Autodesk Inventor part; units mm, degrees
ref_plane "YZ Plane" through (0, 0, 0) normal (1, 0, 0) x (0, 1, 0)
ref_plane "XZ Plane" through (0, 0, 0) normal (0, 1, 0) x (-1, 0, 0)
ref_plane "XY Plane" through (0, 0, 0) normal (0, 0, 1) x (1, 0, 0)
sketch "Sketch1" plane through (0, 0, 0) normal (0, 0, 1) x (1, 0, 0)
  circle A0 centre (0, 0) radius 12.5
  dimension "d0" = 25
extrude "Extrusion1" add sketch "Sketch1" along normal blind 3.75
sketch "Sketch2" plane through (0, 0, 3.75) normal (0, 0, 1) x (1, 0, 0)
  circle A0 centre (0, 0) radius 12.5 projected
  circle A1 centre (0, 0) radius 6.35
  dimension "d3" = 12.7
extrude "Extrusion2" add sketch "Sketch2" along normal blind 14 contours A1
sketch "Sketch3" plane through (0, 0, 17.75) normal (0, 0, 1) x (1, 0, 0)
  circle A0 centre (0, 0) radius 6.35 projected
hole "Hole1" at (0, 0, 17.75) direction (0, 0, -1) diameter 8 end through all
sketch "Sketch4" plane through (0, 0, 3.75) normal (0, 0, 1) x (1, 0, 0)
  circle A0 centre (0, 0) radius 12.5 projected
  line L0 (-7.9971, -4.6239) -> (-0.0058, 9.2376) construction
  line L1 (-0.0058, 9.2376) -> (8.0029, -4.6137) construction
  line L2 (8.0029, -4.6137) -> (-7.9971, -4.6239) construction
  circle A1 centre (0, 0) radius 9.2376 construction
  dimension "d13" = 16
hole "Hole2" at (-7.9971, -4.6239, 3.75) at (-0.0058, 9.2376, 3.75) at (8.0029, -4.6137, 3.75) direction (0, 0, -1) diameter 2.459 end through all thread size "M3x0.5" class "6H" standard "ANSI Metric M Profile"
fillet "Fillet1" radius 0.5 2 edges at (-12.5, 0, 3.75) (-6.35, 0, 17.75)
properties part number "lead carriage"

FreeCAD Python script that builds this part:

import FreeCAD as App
import Part
import Sketcher

V = App.Vector
Q = App.Units.Quantity


def edges_at(feature, points):
    """Names of the edges that pass closest to the given points."""
    edges = feature.Shape.Edges
    near = lambda p: min(range(len(edges)), key=lambda i: edges[i].distToShape(Part.Vertex(*p))[0])
    return sorted({f"Edge{near(p) + 1}" for p in points})

doc = App.newDocument("Part")
body = doc.addObject("PartDesign::Body", "Body")

sketch1 = body.newObject("Sketcher::SketchObject", "Sketch")
sketch1.AttachmentSupport = (doc.getObject("XY_Plane"), [""])
sketch1.MapMode = "FlatFace"
sketch1.addGeometry(Part.Circle(V(0, 0, 0), V(0, 0, 1), 12), False)
sketch1.addConstraint([
    Sketcher.Constraint("Coincident", 0, 3, -1, 1),
    Sketcher.Constraint("Diameter", 0, Q("25 mm")),
])
pad1 = body.newObject("PartDesign::Pad", "Pad")
pad1.Profile = sketch1
pad1.Length = 3.75

sketch2 = body.newObject("Sketcher::SketchObject", "Sketch001")
sketch2.AttachmentSupport = (doc.getObject("XY_Plane"), [""])
sketch2.MapMode = "FlatFace"
sketch2.AttachmentOffset = App.Placement(V(0, 0, 3.75), App.Rotation())
sketch2.addGeometry(Part.Circle(V(0, 0, 0), V(0, 0, 1), 6), False)
sketch2.addConstraint([
    Sketcher.Constraint("Coincident", 0, 3, -1, 1),
    Sketcher.Constraint("Diameter", 0, Q("12.7 mm")),
])
pad2 = body.newObject("PartDesign::Pad", "Pad001")
pad2.Profile = sketch2
pad2.Length = 14

sketch3 = body.newObject("Sketcher::SketchObject", "Sketch002")
sketch3.AttachmentSupport = (doc.getObject("XY_Plane"), [""])
sketch3.MapMode = "FlatFace"
sketch3.AttachmentOffset = App.Placement(V(0, 0, 17.75), App.Rotation())
sketch3.addGeometry(Part.Circle(V(0, 0, 0), V(0, 0, 1), 4), False)
sketch3.addConstraint([
    Sketcher.Constraint("Coincident", 0, 3, -1, 1),
    Sketcher.Constraint("Diameter", 0, Q("8 mm")),
])
doc.recompute()
hole = body.newObject("PartDesign::Hole", "Hole")
hole.Profile = sketch3
hole.ThreadType = "None"
hole.Diameter = 8
hole.DepthType = "ThroughAll"

sketch4 = body.newObject("Sketcher::SketchObject", "Sketch003")
sketch4.AttachmentSupport = (doc.getObject("XY_Plane"), [""])
sketch4.MapMode = "FlatFace"
sketch4.AttachmentOffset = App.Placement(V(0, 0, 3.75), App.Rotation())
sketch4.addGeometry([
    Part.Circle(V(-8, -4.6, 0), V(0, 0, 1), 1.2),
    Part.Circle(V(0, 9.2, 0), V(0, 0, 1), 1.2),
    Part.Circle(V(8, -4.6, 0), V(0, 0, 1), 1.2),
], False)
sketch4.addConstraint([
    Sketcher.Constraint("Equal", 0, 1),
    Sketcher.Constraint("Equal", 1, 2),
    Sketcher.Constraint("Diameter", 0, Q("2.459 mm")),
    Sketcher.Constraint("DistanceX", 0, 3, 2, 3, Q("16 mm")),
    Sketcher.Constraint("DistanceX", 0, 3, -1, 1, Q("7.997 mm")),
    Sketcher.Constraint("DistanceY", 0, 3, -1, 1, Q("4.624 mm")),
    Sketcher.Constraint("DistanceX", 1, 3, -1, 1, Q("0.0058 mm")),
    Sketcher.Constraint("DistanceY", -1, 1, 1, 3, Q("9.2376 mm")),
    Sketcher.Constraint("DistanceY", 2, 3, -1, 1, Q("4.6137 mm")),
])
doc.recompute()
hole2 = body.newObject("PartDesign::Hole", "Hole001")
hole2.Profile = sketch4
hole2.ThreadType = "None"
hole2.Diameter = 2.459
hole2.DepthType = "ThroughAll"
doc.recompute()

fillet = body.newObject("PartDesign::Fillet", "Fillet")
fillet.Base = (hole2, edges_at(hole2, [(-12.5, 0, 3.75), (-6.35, 0, 17.75)]))
fillet.Radius = 0.5

doc.recompute()
